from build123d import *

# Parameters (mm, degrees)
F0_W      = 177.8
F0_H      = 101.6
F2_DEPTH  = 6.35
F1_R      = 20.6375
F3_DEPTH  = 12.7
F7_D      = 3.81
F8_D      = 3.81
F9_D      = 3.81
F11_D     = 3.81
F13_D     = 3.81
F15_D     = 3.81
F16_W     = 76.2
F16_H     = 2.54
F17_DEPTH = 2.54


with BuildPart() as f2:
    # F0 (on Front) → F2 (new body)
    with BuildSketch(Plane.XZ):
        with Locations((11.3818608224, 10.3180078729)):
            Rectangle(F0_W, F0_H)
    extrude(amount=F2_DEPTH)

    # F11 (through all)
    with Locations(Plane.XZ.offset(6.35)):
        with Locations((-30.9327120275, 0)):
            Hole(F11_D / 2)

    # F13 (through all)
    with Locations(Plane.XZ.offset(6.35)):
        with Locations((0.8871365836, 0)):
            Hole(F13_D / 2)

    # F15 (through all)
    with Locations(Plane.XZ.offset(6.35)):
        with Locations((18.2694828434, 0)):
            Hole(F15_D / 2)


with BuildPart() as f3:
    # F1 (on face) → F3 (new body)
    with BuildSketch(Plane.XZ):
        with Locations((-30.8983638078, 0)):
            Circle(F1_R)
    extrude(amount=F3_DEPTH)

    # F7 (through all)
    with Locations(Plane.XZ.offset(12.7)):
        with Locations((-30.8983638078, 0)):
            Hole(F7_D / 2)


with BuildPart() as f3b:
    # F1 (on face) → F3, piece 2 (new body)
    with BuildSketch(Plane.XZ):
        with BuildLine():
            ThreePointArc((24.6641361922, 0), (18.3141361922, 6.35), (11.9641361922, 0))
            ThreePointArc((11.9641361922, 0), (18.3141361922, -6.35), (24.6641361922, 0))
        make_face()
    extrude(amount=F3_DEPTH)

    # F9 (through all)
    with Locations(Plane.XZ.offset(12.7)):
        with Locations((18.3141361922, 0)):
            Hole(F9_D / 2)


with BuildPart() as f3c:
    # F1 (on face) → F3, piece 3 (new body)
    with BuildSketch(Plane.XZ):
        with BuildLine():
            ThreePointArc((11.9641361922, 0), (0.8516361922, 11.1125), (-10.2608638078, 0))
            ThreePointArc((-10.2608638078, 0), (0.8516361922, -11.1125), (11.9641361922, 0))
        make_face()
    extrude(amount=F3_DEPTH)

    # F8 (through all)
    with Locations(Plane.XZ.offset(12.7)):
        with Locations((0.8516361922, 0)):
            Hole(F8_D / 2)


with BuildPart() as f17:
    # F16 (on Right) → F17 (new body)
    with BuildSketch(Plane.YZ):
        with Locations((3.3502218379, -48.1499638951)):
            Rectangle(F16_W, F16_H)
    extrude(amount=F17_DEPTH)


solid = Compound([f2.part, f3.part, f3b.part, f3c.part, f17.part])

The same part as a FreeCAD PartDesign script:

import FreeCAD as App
import Part
import Sketcher

V = App.Vector
Q = App.Units.Quantity

doc = App.newDocument("Part")
body = doc.addObject("PartDesign::Body", "Body")

sketch1 = body.newObject("Sketcher::SketchObject", "Sketch")
sketch1.AttachmentSupport = (doc.getObject("XZ_Plane"), [""])
sketch1.MapMode = "FlatFace"
sketch1.addGeometry([
    Part.LineSegment(V(-78, 61, 0), V(-78, -40, 0)),
    Part.LineSegment(V(-78, -40, 0), V(100, -40, 0)),
    Part.LineSegment(V(100, -40, 0), V(100, 61, 0)),
    Part.LineSegment(V(100, 61, 0), V(-78, 61, 0)),
], False)
sketch1.addConstraint([
    Sketcher.Constraint("Coincident", 0, 2, 1, 1),
    Sketcher.Constraint("Coincident", 1, 2, 2, 1),
    Sketcher.Constraint("Coincident", 2, 2, 3, 1),
    Sketcher.Constraint("Coincident", 3, 2, 0, 1),
    Sketcher.Constraint("Vertical", 0),
    Sketcher.Constraint("Horizontal", 1),
    Sketcher.Constraint("Vertical", 2),
    Sketcher.Constraint("Horizontal", 3),
    Sketcher.Constraint("DistanceX", 1, 1, 1, 2, Q("7 in")),
    Sketcher.Constraint("DistanceY", 0, 2, 0, 1, Q("4 in")),
    Sketcher.Constraint("DistanceX", 0, 2, -1, 1, 77.518139),
    Sketcher.Constraint("DistanceY", 0, 2, -1, 1, 40.481992),
])
pad1 = body.newObject("PartDesign::Pad", "Pad")
pad1.Profile = sketch1
pad1.Length = Q("0.25 in")

sketch2 = body.newObject("Sketcher::SketchObject", "Sketch001")
sketch2.AttachmentSupport = (doc.getObject("XZ_Plane"), [""])
sketch2.MapMode = "FlatFace"
sketch2.AttachmentOffset = App.Placement(V(0, 0, 0.25 * 25.4), App.Rotation())
sketch2.addGeometry(Part.Circle(V(-30.9, 0, 0), V(0, 0, 1), 1.9), False)
sketch2.addConstraint([
    Sketcher.Constraint("PointOnObject", 0, 3, -1),
    Sketcher.Constraint("Diameter", 0, Q("0.15 in")),
    Sketcher.Constraint("DistanceX", 0, 3, -1, 1, 30.932712),
])
doc.recompute()
hole = body.newObject("PartDesign::Hole", "Hole")
hole.Profile = sketch2
hole.ThreadType = "None"
hole.Diameter = Q("0.15 in")
hole.DepthType = "ThroughAll"

sketch3 = body.newObject("Sketcher::SketchObject", "Sketch002")
sketch3.AttachmentSupport = (doc.getObject("XZ_Plane"), [""])
sketch3.MapMode = "FlatFace"
sketch3.AttachmentOffset = App.Placement(V(0, 0, 0.25 * 25.4), App.Rotation())
sketch3.addGeometry(Part.Circle(V(0.9, 0, 0), V(0, 0, 1), 1.9), False)
sketch3.addConstraint([
    Sketcher.Constraint("PointOnObject", 0, 3, -1),
    Sketcher.Constraint("Diameter", 0, Q("0.15 in")),
    Sketcher.Constraint("DistanceX", -1, 1, 0, 3, 0.887137),
])
doc.recompute()
hole2 = body.newObject("PartDesign::Hole", "Hole001")
hole2.Profile = sketch3
hole2.ThreadType = "None"
hole2.Diameter = Q("0.15 in")
hole2.DepthType = "ThroughAll"

sketch4 = body.newObject("Sketcher::SketchObject", "Sketch003")
sketch4.AttachmentSupport = (doc.getObject("XZ_Plane"), [""])
sketch4.MapMode = "FlatFace"
sketch4.AttachmentOffset = App.Placement(V(0, 0, 0.25 * 25.4), App.Rotation())
sketch4.addGeometry(Part.Circle(V(18.3, 0, 0), V(0, 0, 1), 1.9), False)
sketch4.addConstraint([
    Sketcher.Constraint("PointOnObject", 0, 3, -1),
    Sketcher.Constraint("Diameter", 0, Q("0.15 in")),
    Sketcher.Constraint("DistanceX", -1, 1, 0, 3, 18.269483),
])
doc.recompute()
hole3 = body.newObject("PartDesign::Hole", "Hole002")
hole3.Profile = sketch4
hole3.ThreadType = "None"
hole3.Diameter = Q("0.15 in")
hole3.DepthType = "ThroughAll"
body2 = doc.addObject("PartDesign::Body", "Body001")

sketch5 = body2.newObject("Sketcher::SketchObject", "Sketch004")
sketch5.AttachmentSupport = (doc.getObject("XZ_Plane001"), [""])
sketch5.MapMode = "FlatFace"
sketch5.addGeometry(Part.Circle(V(-31, 0, 0), V(0, 0, 1), 21), False)
sketch5.addConstraint([
    Sketcher.Constraint("PointOnObject", 0, 3, -1),
    Sketcher.Constraint("Diameter", 0, Q("1.625 in")),
    Sketcher.Constraint("DistanceX", 0, 3, -1, 1, 30.898364),
])
pad2 = body2.newObject("PartDesign::Pad", "Pad001")
pad2.Profile = sketch5
pad2.Length = Q("0.5 in")

sketch6 = body2.newObject("Sketcher::SketchObject", "Sketch005")
sketch6.AttachmentSupport = (doc.getObject("XZ_Plane001"), [""])
sketch6.MapMode = "FlatFace"
sketch6.AttachmentOffset = App.Placement(V(0, 0, 0.5 * 25.4), App.Rotation())
sketch6.addGeometry(Part.Circle(V(-30.9, 0, 0), V(0, 0, 1), 1.9), False)
sketch6.addConstraint([
    Sketcher.Constraint("PointOnObject", 0, 3, -1),
    Sketcher.Constraint("Diameter", 0, Q("0.15 in")),
    Sketcher.Constraint("DistanceX", 0, 3, -1, 1, 30.898364),
])
doc.recompute()
hole4 = body2.newObject("PartDesign::Hole", "Hole003")
hole4.Profile = sketch6
hole4.ThreadType = "None"
hole4.Diameter = Q("0.15 in")
hole4.DepthType = "ThroughAll"
body3 = doc.addObject("PartDesign::Body", "Body002")

sketch7 = body3.newObject("Sketcher::SketchObject", "Sketch006")
sketch7.AttachmentSupport = (doc.getObject("XZ_Plane002"), [""])
sketch7.MapMode = "FlatFace"
sketch7.addGeometry(Part.Circle(V(18, 0, 0), V(0, 0, 1), 6), False)
sketch7.addConstraint([
    Sketcher.Constraint("PointOnObject", 0, 3, -1),
    Sketcher.Constraint("Diameter", 0, Q("0.5 in")),
    Sketcher.Constraint("DistanceX", -1, 1, 0, 3, 18.314136),
])
pad3 = body3.newObject("PartDesign::Pad", "Pad002")
pad3.Profile = sketch7
pad3.Length = Q("0.5 in")

sketch8 = body3.newObject("Sketcher::SketchObject", "Sketch007")
sketch8.AttachmentSupport = (doc.getObject("XZ_Plane002"), [""])
sketch8.MapMode = "FlatFace"
sketch8.AttachmentOffset = App.Placement(V(0, 0, 0.5 * 25.4), App.Rotation())
sketch8.addGeometry(Part.Circle(V(18.3, 0, 0), V(0, 0, 1), 1.9), False)
sketch8.addConstraint([
    Sketcher.Constraint("PointOnObject", 0, 3, -1),
    Sketcher.Constraint("Diameter", 0, Q("0.15 in")),
    Sketcher.Constraint("DistanceX", -1, 1, 0, 3, 18.314136),
])
doc.recompute()
hole5 = body3.newObject("PartDesign::Hole", "Hole004")
hole5.Profile = sketch8
hole5.ThreadType = "None"
hole5.Diameter = Q("0.15 in")
hole5.DepthType = "ThroughAll"
body4 = doc.addObject("PartDesign::Body", "Body003")

sketch9 = body4.newObject("Sketcher::SketchObject", "Sketch008")
sketch9.AttachmentSupport = (doc.getObject("XZ_Plane003"), [""])
sketch9.MapMode = "FlatFace"
sketch9.addGeometry(Part.Circle(V(1, 0, 0), V(0, 0, 1), 11), False)
sketch9.addConstraint([
    Sketcher.Constraint("PointOnObject", 0, 3, -1),
    Sketcher.Constraint("Diameter", 0, Q("0.875 in")),
    Sketcher.Constraint("DistanceX", -1, 1, 0, 3, 0.851636),
])
pad4 = body4.newObject("PartDesign::Pad", "Pad003")
pad4.Profile = sketch9
pad4.Length = Q("0.5 in")

sketch10 = body4.newObject("Sketcher::SketchObject", "Sketch009")
sketch10.AttachmentSupport = (doc.getObject("XZ_Plane003"), [""])
sketch10.MapMode = "FlatFace"
sketch10.AttachmentOffset = App.Placement(V(0, 0, 0.5 * 25.4), App.Rotation())
sketch10.addGeometry(Part.Circle(V(0.9, 0, 0), V(0, 0, 1), 1.9), False)
sketch10.addConstraint([
    Sketcher.Constraint("PointOnObject", 0, 3, -1),
    Sketcher.Constraint("Diameter", 0, Q("0.15 in")),
    Sketcher.Constraint("DistanceX", -1, 1, 0, 3, 0.851636),
])
doc.recompute()
hole6 = body4.newObject("PartDesign::Hole", "Hole005")
hole6.Profile = sketch10
hole6.ThreadType = "None"
hole6.Diameter = Q("0.15 in")
hole6.DepthType = "ThroughAll"
body5 = doc.addObject("PartDesign::Body", "Body004")

sketch11 = body5.newObject("Sketcher::SketchObject", "Sketch010")
sketch11.AttachmentSupport = (doc.getObject("YZ_Plane004"), [""])
sketch11.MapMode = "FlatFace"
sketch11.addGeometry([
    Part.LineSegment(V(-34.7, -46.9, 0), V(-34.7, -49.4, 0)),
    Part.LineSegment(V(-34.7, -49.4, 0), V(41.5, -49.4, 0)),
    Part.LineSegment(V(41.5, -49.4, 0), V(41.5, -46.9, 0)),
    Part.LineSegment(V(41.5, -46.9, 0), V(-34.7, -46.9, 0)),
], False)
sketch11.addConstraint([
    Sketcher.Constraint("Coincident", 0, 2, 1, 1),
    Sketcher.Constraint("Coincident", 1, 2, 2, 1),
    Sketcher.Constraint("Coincident", 2, 2, 3, 1),
    Sketcher.Constraint("Coincident", 3, 2, 0, 1),
    Sketcher.Constraint("Vertical", 0),
    Sketcher.Constraint("Horizontal", 1),
    Sketcher.Constraint("Vertical", 2),
    Sketcher.Constraint("Horizontal", 3),
    Sketcher.Constraint("DistanceX", 1, 1, 1, 2, Q("3 in")),
    Sketcher.Constraint("DistanceY", 0, 2, 0, 1, Q("0.1 in")),
    Sketcher.Constraint("DistanceX", 0, 2, -1, 1, 34.749778),
    Sketcher.Constraint("DistanceY", 0, 2, -1, 1, 49.419964),
])
pad5 = body5.newObject("PartDesign::Pad", "Pad004")
pad5.Profile = sketch11
pad5.Length = Q("0.1 in")

doc.recompute()
